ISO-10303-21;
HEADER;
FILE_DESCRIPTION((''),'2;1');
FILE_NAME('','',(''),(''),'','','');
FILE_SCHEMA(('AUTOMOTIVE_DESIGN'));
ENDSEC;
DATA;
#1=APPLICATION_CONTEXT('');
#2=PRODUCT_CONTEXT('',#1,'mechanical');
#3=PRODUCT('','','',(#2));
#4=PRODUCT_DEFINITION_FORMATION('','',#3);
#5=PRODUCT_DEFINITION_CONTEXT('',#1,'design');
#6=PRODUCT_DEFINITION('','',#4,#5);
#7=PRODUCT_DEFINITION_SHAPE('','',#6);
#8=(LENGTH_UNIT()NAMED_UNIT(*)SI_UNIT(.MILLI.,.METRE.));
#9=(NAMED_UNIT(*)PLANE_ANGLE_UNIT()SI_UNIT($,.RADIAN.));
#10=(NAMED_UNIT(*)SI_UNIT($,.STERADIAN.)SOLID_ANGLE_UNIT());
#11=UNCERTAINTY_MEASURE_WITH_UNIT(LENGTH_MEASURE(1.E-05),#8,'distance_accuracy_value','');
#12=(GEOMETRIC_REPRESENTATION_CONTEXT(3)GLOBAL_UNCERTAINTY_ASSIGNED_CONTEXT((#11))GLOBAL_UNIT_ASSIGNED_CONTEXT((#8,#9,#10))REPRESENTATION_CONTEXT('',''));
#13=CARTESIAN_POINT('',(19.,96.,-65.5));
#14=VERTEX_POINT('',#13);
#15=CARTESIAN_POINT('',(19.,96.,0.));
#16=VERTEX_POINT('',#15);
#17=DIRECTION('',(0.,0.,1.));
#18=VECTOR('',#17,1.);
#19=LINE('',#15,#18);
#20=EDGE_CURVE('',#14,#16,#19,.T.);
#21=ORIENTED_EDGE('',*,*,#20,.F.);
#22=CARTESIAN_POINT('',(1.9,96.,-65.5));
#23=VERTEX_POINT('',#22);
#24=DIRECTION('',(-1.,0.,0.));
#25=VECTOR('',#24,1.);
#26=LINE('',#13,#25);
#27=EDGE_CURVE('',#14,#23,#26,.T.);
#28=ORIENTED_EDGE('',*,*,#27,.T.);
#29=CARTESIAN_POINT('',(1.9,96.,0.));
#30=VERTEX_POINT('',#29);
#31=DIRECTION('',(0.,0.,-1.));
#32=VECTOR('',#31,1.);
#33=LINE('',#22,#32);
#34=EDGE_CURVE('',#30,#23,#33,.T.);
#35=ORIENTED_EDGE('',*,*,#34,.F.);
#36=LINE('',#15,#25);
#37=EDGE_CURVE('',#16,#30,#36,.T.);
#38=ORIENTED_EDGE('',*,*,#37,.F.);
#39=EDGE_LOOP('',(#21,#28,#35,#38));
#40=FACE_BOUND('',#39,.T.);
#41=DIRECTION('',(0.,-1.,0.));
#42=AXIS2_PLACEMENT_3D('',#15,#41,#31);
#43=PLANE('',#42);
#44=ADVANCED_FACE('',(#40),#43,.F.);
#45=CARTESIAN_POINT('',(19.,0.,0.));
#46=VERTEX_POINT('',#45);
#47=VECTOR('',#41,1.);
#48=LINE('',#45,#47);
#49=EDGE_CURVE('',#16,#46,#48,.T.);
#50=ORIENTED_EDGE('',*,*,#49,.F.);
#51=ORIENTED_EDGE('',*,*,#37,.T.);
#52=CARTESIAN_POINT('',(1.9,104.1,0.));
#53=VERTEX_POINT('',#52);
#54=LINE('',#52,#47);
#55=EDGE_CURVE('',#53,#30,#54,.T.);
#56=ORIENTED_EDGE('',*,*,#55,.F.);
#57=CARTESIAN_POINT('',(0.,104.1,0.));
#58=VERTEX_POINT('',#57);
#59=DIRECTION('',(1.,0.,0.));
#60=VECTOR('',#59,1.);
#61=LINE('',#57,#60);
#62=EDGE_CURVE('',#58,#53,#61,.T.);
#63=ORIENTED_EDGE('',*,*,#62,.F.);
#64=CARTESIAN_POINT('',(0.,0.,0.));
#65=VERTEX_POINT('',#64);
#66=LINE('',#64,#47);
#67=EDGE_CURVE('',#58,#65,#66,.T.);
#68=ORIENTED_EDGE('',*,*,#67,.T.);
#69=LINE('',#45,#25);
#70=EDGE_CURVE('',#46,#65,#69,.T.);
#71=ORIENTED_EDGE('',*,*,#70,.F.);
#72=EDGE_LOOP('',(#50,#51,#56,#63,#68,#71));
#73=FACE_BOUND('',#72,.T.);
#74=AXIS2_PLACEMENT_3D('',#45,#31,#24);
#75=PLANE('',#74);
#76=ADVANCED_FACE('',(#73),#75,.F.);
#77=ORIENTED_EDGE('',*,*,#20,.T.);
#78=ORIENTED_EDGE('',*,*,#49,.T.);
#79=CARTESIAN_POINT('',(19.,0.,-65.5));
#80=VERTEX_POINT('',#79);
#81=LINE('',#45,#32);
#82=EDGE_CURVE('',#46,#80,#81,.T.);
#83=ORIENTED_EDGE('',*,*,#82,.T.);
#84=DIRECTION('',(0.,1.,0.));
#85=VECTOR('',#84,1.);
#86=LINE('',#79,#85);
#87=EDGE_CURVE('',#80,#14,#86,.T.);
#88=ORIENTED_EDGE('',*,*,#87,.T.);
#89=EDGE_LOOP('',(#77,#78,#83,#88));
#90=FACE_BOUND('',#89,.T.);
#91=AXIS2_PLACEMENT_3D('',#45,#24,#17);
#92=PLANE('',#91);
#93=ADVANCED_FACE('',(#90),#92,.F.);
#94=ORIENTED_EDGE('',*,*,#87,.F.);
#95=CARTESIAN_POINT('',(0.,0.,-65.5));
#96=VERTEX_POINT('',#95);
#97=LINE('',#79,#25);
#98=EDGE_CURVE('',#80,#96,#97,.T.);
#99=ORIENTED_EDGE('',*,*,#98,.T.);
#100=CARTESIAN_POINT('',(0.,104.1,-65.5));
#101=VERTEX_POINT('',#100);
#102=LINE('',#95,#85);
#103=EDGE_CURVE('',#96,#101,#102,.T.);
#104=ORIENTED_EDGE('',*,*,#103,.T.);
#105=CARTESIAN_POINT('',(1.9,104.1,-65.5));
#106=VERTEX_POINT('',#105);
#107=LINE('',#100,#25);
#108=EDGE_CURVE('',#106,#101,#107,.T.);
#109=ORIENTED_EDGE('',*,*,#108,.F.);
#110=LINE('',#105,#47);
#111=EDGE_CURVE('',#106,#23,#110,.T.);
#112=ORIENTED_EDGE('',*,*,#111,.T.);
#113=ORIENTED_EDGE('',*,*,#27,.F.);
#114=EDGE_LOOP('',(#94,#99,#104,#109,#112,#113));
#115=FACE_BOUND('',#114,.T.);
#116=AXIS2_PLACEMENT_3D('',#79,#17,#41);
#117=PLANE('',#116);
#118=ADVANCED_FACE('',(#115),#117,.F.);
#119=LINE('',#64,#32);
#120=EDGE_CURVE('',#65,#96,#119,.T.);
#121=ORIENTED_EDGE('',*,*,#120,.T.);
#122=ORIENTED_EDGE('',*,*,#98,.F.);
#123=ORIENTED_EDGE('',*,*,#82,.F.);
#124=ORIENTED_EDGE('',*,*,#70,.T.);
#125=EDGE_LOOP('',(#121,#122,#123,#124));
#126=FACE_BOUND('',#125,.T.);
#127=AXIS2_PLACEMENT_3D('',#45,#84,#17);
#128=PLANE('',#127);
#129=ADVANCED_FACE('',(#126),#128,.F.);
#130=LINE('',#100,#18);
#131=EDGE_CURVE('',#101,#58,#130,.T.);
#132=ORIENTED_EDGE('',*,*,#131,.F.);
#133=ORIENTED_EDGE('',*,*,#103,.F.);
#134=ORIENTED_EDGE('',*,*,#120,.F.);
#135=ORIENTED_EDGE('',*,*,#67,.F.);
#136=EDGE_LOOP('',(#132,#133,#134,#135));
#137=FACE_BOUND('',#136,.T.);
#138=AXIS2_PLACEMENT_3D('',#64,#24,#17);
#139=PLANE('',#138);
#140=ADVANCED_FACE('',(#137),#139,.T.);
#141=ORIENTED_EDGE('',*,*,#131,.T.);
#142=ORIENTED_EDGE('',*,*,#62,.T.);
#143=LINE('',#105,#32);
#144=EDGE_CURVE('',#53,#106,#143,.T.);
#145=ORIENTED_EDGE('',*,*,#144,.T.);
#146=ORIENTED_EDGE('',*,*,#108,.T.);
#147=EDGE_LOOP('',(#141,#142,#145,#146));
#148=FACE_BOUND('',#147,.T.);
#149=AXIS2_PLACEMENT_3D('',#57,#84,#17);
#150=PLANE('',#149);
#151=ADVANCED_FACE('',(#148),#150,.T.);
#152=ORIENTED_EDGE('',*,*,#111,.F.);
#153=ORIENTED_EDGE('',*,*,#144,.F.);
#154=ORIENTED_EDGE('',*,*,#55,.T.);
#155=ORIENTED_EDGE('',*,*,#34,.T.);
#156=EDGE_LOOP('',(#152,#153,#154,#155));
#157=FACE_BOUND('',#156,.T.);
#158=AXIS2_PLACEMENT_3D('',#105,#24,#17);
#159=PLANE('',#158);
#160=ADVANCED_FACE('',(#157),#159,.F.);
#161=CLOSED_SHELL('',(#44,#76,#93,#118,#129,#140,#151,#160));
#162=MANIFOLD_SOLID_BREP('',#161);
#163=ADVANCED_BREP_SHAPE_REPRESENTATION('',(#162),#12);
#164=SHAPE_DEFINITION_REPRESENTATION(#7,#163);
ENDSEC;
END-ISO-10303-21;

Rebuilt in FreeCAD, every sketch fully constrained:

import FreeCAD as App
import Part
import Sketcher

V = App.Vector


def add_polygon(sketch, points):
    """Adds a closed chain of lines whose ends are joined by coincident constraints."""
    first, n = sketch.GeometryCount, len(points)
    for a, b in zip(points, points[1:] + points[:1]):
        sketch.addGeometry(Part.LineSegment(App.Vector(*a, 0), App.Vector(*b, 0)), False)
    for i in range(n):
        sketch.addConstraint(Sketcher.Constraint("Coincident", first + i, 2, first + (i + 1) % n, 1))

doc = App.newDocument("Part")
body = doc.addObject("PartDesign::Body", "Body")

# Sketch on YZ plane
sketch1 = body.newObject("Sketcher::SketchObject", "Sketch")
sketch1.AttachmentSupport = (doc.getObject("YZ_Plane"), [""])
sketch1.MapMode = "FlatFace"
add_polygon(sketch1, [(96, 0), (0, 0), (0, -66), (96, -66)])  # lines 0-3
sketch1.addConstraint(Sketcher.Constraint("Horizontal", 0))
sketch1.addConstraint(Sketcher.Constraint("Vertical", 1))
sketch1.addConstraint(Sketcher.Constraint("Horizontal", 2))
sketch1.addConstraint(Sketcher.Constraint("Vertical", 3))
sketch1.addConstraint(Sketcher.Constraint("Coincident", 0, 2, -1, 1))
sketch1.addConstraint(Sketcher.Constraint("DistanceX", 0, 2, 0, 1, 96.0))
sketch1.addConstraint(Sketcher.Constraint("DistanceY", 1, 2, 1, 1, 65.5))
pad1 = body.newObject("PartDesign::Pad", "Pad")
pad1.Profile = sketch1
pad1.Length = 19

# Sketch on XZ plane
sketch2 = body.newObject("Sketcher::SketchObject", "Sketch001")
sketch2.AttachmentSupport = (doc.getObject("XZ_Plane"), [""])
sketch2.MapMode = "FlatFace"
sketch2.AttachmentOffset = App.Placement(V(0, 0, -96), App.Rotation())
add_polygon(sketch2, [(0, -65.5), (0, 0), (1.9, 0), (1.9, -65.5)])  # lines 0-3
sketch2.addConstraint(Sketcher.Constraint("Vertical", 0))
sketch2.addConstraint(Sketcher.Constraint("Horizontal", 1))
sketch2.addConstraint(Sketcher.Constraint("Vertical", 2))
sketch2.addConstraint(Sketcher.Constraint("Horizontal", 3))
sketch2.addConstraint(Sketcher.Constraint("Coincident", 0, 2, -1, 1))
sketch2.addConstraint(Sketcher.Constraint("DistanceX", 1, 1, 1, 2, 1.9))
sketch2.addConstraint(Sketcher.Constraint("DistanceY", 0, 1, 0, 2, 65.5))
pad2 = body.newObject("PartDesign::Pad", "Pad001")
pad2.Profile = sketch2
pad2.Length = 8.1
pad2.Reversed = True

doc.recompute()
